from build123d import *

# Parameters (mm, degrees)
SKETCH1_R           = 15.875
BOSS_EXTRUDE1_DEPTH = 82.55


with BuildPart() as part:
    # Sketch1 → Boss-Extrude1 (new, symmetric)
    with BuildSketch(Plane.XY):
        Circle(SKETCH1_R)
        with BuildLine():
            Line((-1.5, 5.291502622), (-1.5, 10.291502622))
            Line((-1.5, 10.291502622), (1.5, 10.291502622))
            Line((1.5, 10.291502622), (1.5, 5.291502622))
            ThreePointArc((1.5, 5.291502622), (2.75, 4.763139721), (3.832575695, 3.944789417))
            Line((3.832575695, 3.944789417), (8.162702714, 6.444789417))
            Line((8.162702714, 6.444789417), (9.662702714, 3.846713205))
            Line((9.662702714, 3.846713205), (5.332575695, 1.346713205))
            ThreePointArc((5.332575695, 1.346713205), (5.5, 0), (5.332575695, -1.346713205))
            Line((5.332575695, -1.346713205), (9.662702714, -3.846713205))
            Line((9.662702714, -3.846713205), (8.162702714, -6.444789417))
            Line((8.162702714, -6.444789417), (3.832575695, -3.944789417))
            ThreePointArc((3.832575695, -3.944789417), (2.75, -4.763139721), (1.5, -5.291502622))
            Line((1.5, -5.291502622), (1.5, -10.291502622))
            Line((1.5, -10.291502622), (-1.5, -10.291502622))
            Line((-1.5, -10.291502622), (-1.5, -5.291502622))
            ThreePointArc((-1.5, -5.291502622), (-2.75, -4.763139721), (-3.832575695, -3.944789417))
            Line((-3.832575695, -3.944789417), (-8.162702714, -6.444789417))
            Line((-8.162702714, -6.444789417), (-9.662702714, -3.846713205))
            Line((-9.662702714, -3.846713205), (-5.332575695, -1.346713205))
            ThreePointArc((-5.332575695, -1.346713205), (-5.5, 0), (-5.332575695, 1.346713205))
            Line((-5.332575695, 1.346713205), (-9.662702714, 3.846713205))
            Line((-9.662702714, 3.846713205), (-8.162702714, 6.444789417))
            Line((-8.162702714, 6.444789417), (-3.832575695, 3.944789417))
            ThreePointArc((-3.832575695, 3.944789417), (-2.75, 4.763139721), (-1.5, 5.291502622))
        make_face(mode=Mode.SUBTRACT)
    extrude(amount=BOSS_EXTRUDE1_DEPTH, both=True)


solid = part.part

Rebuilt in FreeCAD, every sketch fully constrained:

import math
import FreeCAD as App
import Part
import Sketcher
from FreeCAD import Vector
Q = App.Units.Quantity

doc = App.newDocument("Part")
body = doc.addObject("PartDesign::Body", "Body")

sketch1 = body.newObject("Sketcher::SketchObject", "Sketch")
sketch1.AttachmentSupport = (doc.getObject("XY_Plane"), [""])
sketch1.MapMode = "FlatFace"
sketch1.addGeometry(Part.Circle(Vector(0, 0, 0), Vector(0, 0, 1), 15.875), False)
sketch1.addGeometry(Part.ArcOfCircle(Part.Circle(Vector(0, 0, 0), Vector(0, 0, 1), 5.5), math.radians(105.82662), math.radians(134.17338)), False)
sketch1.addGeometry(Part.LineSegment(Vector(-1.5, 5.291503, 0), Vector(-1.5, 10.291503, 0)), False)
sketch1.addGeometry(Part.LineSegment(Vector(-1.5, 10.291503, 0), Vector(1.5, 10.291503, 0)), False)
sketch1.addGeometry(Part.LineSegment(Vector(1.5, 10.291503, 0), Vector(1.5, 5.291503, 0)), False)
sketch1.addGeometry(Part.ArcOfCircle(Part.Circle(Vector(0, 0, 0), Vector(0, 0, 1), 5.5), math.radians(45.82662), math.radians(74.17338)), False)
sketch1.addGeometry(Part.LineSegment(Vector(3.832576, 3.944789, 0), Vector(8.162703, 6.444789, 0)), False)
sketch1.addGeometry(Part.LineSegment(Vector(8.162703, 6.444789, 0), Vector(9.662703, 3.846713, 0)), False)
sketch1.addGeometry(Part.LineSegment(Vector(9.662703, 3.846713, 0), Vector(5.332576, 1.346713, 0)), False)
sketch1.addGeometry(Part.ArcOfCircle(Part.Circle(Vector(0, 0, 0), Vector(0, 0, 1), 5.5), math.radians(-14.17338), math.radians(14.17338)), False)
sketch1.addGeometry(Part.LineSegment(Vector(5.332576, -1.346713, 0), Vector(9.662703, -3.846713, 0)), False)
sketch1.addGeometry(Part.LineSegment(Vector(9.662703, -3.846713, 0), Vector(8.162703, -6.444789, 0)), False)
sketch1.addGeometry(Part.LineSegment(Vector(8.162703, -6.444789, 0), Vector(3.832576, -3.944789, 0)), False)
sketch1.addGeometry(Part.ArcOfCircle(Part.Circle(Vector(0, 0, 0), Vector(0, 0, 1), 5.5), math.radians(-74.17338), math.radians(-45.82662)), False)
sketch1.addGeometry(Part.LineSegment(Vector(1.5, -5.291503, 0), Vector(1.5, -10.291503, 0)), False)
sketch1.addGeometry(Part.LineSegment(Vector(1.5, -10.291503, 0), Vector(-1.5, -10.291503, 0)), False)
sketch1.addGeometry(Part.LineSegment(Vector(-1.5, -10.291503, 0), Vector(-1.5, -5.291503, 0)), False)
sketch1.addGeometry(Part.ArcOfCircle(Part.Circle(Vector(0, 0, 0), Vector(0, 0, 1), 5.5), math.radians(-134.17338), math.radians(-105.82662)), False)
sketch1.addGeometry(Part.LineSegment(Vector(-3.832576, -3.944789, 0), Vector(-8.162703, -6.444789, 0)), False)
sketch1.addGeometry(Part.LineSegment(Vector(-8.162703, -6.444789, 0), Vector(-9.662703, -3.846713, 0)), False)
sketch1.addGeometry(Part.LineSegment(Vector(-9.662703, -3.846713, 0), Vector(-5.332576, -1.346713, 0)), False)
sketch1.addGeometry(Part.ArcOfCircle(Part.Circle(Vector(0, 0, 0), Vector(0, 0, 1), 5.5), math.radians(165.82662), math.radians(194.17338)), False)
sketch1.addGeometry(Part.LineSegment(Vector(-5.332576, 1.346713, 0), Vector(-9.662703, 3.846713, 0)), False)
sketch1.addGeometry(Part.LineSegment(Vector(-9.662703, 3.846713, 0), Vector(-8.162703, 6.444789, 0)), False)
sketch1.addGeometry(Part.LineSegment(Vector(-8.162703, 6.444789, 0), Vector(-3.832576, 3.944789, 0)), False)
sketch1.addConstraint(Sketcher.Constraint("Coincident", 1, 1, 2, 1))
sketch1.addConstraint(Sketcher.Constraint("Coincident", 2, 2, 3, 1))
sketch1.addConstraint(Sketcher.Constraint("Coincident", 3, 2, 4, 1))
sketch1.addConstraint(Sketcher.Constraint("Coincident", 4, 2, 5, 2))
sketch1.addConstraint(Sketcher.Constraint("Coincident", 5, 1, 6, 1))
sketch1.addConstraint(Sketcher.Constraint("Coincident", 6, 2, 7, 1))
sketch1.addConstraint(Sketcher.Constraint("Coincident", 7, 2, 8, 1))
sketch1.addConstraint(Sketcher.Constraint("Coincident", 8, 2, 9, 2))
sketch1.addConstraint(Sketcher.Constraint("Coincident", 9, 1, 10, 1))
sketch1.addConstraint(Sketcher.Constraint("Coincident", 10, 2, 11, 1))
sketch1.addConstraint(Sketcher.Constraint("Coincident", 11, 2, 12, 1))
sketch1.addConstraint(Sketcher.Constraint("Coincident", 12, 2, 13, 2))
sketch1.addConstraint(Sketcher.Constraint("Coincident", 13, 1, 14, 1))
sketch1.addConstraint(Sketcher.Constraint("Coincident", 14, 2, 15, 1))
sketch1.addConstraint(Sketcher.Constraint("Coincident", 15, 2, 16, 1))
sketch1.addConstraint(Sketcher.Constraint("Coincident", 16, 2, 17, 2))
sketch1.addConstraint(Sketcher.Constraint("Coincident", 17, 1, 18, 1))
sketch1.addConstraint(Sketcher.Constraint("Coincident", 18, 2, 19, 1))
sketch1.addConstraint(Sketcher.Constraint("Coincident", 19, 2, 20, 1))
sketch1.addConstraint(Sketcher.Constraint("Coincident", 20, 2, 21, 2))
sketch1.addConstraint(Sketcher.Constraint("Coincident", 21, 1, 22, 1))
sketch1.addConstraint(Sketcher.Constraint("Coincident", 22, 2, 23, 1))
sketch1.addConstraint(Sketcher.Constraint("Coincident", 23, 2, 24, 1))
sketch1.addConstraint(Sketcher.Constraint("Coincident", 24, 2, 1, 2))
sketch1.addConstraint(Sketcher.Constraint("Vertical", 2))
sketch1.addConstraint(Sketcher.Constraint("Horizontal", 3))
sketch1.addConstraint(Sketcher.Constraint("Vertical", 4))
sketch1.addConstraint(Sketcher.Constraint("Vertical", 14))
sketch1.addConstraint(Sketcher.Constraint("Horizontal", 15))
sketch1.addConstraint(Sketcher.Constraint("Vertical", 16))
sketch1.addConstraint(Sketcher.Constraint("Coincident", 0, 3, -1, 1))
sketch1.addConstraint(Sketcher.Constraint("Coincident", 1, 3, -1, 1))
sketch1.addConstraint(Sketcher.Constraint("Coincident", 5, 3, -1, 1))
sketch1.addConstraint(Sketcher.Constraint("Coincident", 9, 3, -1, 1))
sketch1.addConstraint(Sketcher.Constraint("Coincident", 13, 3, -1, 1))
sketch1.addConstraint(Sketcher.Constraint("Coincident", 17, 3, -1, 1))
sketch1.addConstraint(Sketcher.Constraint("Coincident", 21, 3, -1, 1))
sketch1.addConstraint(Sketcher.Constraint("Equal", 1, 5))
sketch1.addConstraint(Sketcher.Constraint("Equal", 5, 9))
sketch1.addConstraint(Sketcher.Constraint("Equal", 9, 13))
sketch1.addConstraint(Sketcher.Constraint("Equal", 13, 17))
sketch1.addConstraint(Sketcher.Constraint("Equal", 17, 21))
sketch1.addConstraint(Sketcher.Constraint("Symmetric", 2, 2, 14, 2, -1, 1))
sketch1.addConstraint(Sketcher.Constraint("Symmetric", 6, 2, 18, 2, -1, 1))
sketch1.addConstraint(Sketcher.Constraint("Symmetric", 7, 2, 19, 2, -1, 1))
sketch1.addConstraint(Sketcher.Constraint("Symmetric", 10, 2, 22, 2, -1, 1))
sketch1.addConstraint(Sketcher.Constraint("Symmetric", 11, 2, 23, 2, -1, 1))
sketch1.addConstraint(Sketcher.Constraint("Symmetric", 11, 2, 18, 2, -2))
sketch1.addConstraint(Sketcher.Constraint("Symmetric", 10, 2, 19, 2, -2))
sketch1.addConstraint(Sketcher.Constraint("Perpendicular", 6, 7))
sketch1.addConstraint(Sketcher.Constraint("Perpendicular", 7, 8))
sketch1.addConstraint(Sketcher.Constraint("Perpendicular", 10, 11))
sketch1.addConstraint(Sketcher.Constraint("Perpendicular", 11, 12))
sketch1.addConstraint(Sketcher.Constraint("Parallel", 8, 18))
sketch1.addConstraint(Sketcher.Constraint("Perpendicular", 19, 20))
sketch1.addConstraint(Sketcher.Constraint("Parallel", 12, 22))
sketch1.addConstraint(Sketcher.Constraint("Perpendicular", 23, 24))
sketch1.addConstraint(Sketcher.Constraint("Horizontal", 1, 1, 4, 2))
sketch1.addConstraint(Sketcher.Constraint("Horizontal", 13, 1, 16, 2))
sketch1.addConstraint(Sketcher.Constraint("Equal", 6, 8))
sketch1.addConstraint(Sketcher.Constraint("Radius", 1, Q("5.5 mm")))
sketch1.addConstraint(Sketcher.Constraint("Diameter", 0, Q("31.75 mm")))
sketch1.addConstraint(Sketcher.Constraint("DistanceX", 3, 1, 3, 2, Q("3 mm")))
sketch1.addConstraint(Sketcher.Constraint("DistanceY", 2, 1, 2, 2, Q("5 mm")))
sketch1.addConstraint(Sketcher.Constraint("Angle", 6, Q("30 deg")))
sketch1.addConstraint(Sketcher.Constraint("Distance", 6, Q("5 mm")))
sketch1.addConstraint(Sketcher.Constraint("Distance", 7, Q("3 mm")))
pad1 = body.newObject("PartDesign::Pad", "Pad")
pad1.Profile = sketch1
pad1.Length = 165.1
pad1.Midplane = True

doc.recompute()
